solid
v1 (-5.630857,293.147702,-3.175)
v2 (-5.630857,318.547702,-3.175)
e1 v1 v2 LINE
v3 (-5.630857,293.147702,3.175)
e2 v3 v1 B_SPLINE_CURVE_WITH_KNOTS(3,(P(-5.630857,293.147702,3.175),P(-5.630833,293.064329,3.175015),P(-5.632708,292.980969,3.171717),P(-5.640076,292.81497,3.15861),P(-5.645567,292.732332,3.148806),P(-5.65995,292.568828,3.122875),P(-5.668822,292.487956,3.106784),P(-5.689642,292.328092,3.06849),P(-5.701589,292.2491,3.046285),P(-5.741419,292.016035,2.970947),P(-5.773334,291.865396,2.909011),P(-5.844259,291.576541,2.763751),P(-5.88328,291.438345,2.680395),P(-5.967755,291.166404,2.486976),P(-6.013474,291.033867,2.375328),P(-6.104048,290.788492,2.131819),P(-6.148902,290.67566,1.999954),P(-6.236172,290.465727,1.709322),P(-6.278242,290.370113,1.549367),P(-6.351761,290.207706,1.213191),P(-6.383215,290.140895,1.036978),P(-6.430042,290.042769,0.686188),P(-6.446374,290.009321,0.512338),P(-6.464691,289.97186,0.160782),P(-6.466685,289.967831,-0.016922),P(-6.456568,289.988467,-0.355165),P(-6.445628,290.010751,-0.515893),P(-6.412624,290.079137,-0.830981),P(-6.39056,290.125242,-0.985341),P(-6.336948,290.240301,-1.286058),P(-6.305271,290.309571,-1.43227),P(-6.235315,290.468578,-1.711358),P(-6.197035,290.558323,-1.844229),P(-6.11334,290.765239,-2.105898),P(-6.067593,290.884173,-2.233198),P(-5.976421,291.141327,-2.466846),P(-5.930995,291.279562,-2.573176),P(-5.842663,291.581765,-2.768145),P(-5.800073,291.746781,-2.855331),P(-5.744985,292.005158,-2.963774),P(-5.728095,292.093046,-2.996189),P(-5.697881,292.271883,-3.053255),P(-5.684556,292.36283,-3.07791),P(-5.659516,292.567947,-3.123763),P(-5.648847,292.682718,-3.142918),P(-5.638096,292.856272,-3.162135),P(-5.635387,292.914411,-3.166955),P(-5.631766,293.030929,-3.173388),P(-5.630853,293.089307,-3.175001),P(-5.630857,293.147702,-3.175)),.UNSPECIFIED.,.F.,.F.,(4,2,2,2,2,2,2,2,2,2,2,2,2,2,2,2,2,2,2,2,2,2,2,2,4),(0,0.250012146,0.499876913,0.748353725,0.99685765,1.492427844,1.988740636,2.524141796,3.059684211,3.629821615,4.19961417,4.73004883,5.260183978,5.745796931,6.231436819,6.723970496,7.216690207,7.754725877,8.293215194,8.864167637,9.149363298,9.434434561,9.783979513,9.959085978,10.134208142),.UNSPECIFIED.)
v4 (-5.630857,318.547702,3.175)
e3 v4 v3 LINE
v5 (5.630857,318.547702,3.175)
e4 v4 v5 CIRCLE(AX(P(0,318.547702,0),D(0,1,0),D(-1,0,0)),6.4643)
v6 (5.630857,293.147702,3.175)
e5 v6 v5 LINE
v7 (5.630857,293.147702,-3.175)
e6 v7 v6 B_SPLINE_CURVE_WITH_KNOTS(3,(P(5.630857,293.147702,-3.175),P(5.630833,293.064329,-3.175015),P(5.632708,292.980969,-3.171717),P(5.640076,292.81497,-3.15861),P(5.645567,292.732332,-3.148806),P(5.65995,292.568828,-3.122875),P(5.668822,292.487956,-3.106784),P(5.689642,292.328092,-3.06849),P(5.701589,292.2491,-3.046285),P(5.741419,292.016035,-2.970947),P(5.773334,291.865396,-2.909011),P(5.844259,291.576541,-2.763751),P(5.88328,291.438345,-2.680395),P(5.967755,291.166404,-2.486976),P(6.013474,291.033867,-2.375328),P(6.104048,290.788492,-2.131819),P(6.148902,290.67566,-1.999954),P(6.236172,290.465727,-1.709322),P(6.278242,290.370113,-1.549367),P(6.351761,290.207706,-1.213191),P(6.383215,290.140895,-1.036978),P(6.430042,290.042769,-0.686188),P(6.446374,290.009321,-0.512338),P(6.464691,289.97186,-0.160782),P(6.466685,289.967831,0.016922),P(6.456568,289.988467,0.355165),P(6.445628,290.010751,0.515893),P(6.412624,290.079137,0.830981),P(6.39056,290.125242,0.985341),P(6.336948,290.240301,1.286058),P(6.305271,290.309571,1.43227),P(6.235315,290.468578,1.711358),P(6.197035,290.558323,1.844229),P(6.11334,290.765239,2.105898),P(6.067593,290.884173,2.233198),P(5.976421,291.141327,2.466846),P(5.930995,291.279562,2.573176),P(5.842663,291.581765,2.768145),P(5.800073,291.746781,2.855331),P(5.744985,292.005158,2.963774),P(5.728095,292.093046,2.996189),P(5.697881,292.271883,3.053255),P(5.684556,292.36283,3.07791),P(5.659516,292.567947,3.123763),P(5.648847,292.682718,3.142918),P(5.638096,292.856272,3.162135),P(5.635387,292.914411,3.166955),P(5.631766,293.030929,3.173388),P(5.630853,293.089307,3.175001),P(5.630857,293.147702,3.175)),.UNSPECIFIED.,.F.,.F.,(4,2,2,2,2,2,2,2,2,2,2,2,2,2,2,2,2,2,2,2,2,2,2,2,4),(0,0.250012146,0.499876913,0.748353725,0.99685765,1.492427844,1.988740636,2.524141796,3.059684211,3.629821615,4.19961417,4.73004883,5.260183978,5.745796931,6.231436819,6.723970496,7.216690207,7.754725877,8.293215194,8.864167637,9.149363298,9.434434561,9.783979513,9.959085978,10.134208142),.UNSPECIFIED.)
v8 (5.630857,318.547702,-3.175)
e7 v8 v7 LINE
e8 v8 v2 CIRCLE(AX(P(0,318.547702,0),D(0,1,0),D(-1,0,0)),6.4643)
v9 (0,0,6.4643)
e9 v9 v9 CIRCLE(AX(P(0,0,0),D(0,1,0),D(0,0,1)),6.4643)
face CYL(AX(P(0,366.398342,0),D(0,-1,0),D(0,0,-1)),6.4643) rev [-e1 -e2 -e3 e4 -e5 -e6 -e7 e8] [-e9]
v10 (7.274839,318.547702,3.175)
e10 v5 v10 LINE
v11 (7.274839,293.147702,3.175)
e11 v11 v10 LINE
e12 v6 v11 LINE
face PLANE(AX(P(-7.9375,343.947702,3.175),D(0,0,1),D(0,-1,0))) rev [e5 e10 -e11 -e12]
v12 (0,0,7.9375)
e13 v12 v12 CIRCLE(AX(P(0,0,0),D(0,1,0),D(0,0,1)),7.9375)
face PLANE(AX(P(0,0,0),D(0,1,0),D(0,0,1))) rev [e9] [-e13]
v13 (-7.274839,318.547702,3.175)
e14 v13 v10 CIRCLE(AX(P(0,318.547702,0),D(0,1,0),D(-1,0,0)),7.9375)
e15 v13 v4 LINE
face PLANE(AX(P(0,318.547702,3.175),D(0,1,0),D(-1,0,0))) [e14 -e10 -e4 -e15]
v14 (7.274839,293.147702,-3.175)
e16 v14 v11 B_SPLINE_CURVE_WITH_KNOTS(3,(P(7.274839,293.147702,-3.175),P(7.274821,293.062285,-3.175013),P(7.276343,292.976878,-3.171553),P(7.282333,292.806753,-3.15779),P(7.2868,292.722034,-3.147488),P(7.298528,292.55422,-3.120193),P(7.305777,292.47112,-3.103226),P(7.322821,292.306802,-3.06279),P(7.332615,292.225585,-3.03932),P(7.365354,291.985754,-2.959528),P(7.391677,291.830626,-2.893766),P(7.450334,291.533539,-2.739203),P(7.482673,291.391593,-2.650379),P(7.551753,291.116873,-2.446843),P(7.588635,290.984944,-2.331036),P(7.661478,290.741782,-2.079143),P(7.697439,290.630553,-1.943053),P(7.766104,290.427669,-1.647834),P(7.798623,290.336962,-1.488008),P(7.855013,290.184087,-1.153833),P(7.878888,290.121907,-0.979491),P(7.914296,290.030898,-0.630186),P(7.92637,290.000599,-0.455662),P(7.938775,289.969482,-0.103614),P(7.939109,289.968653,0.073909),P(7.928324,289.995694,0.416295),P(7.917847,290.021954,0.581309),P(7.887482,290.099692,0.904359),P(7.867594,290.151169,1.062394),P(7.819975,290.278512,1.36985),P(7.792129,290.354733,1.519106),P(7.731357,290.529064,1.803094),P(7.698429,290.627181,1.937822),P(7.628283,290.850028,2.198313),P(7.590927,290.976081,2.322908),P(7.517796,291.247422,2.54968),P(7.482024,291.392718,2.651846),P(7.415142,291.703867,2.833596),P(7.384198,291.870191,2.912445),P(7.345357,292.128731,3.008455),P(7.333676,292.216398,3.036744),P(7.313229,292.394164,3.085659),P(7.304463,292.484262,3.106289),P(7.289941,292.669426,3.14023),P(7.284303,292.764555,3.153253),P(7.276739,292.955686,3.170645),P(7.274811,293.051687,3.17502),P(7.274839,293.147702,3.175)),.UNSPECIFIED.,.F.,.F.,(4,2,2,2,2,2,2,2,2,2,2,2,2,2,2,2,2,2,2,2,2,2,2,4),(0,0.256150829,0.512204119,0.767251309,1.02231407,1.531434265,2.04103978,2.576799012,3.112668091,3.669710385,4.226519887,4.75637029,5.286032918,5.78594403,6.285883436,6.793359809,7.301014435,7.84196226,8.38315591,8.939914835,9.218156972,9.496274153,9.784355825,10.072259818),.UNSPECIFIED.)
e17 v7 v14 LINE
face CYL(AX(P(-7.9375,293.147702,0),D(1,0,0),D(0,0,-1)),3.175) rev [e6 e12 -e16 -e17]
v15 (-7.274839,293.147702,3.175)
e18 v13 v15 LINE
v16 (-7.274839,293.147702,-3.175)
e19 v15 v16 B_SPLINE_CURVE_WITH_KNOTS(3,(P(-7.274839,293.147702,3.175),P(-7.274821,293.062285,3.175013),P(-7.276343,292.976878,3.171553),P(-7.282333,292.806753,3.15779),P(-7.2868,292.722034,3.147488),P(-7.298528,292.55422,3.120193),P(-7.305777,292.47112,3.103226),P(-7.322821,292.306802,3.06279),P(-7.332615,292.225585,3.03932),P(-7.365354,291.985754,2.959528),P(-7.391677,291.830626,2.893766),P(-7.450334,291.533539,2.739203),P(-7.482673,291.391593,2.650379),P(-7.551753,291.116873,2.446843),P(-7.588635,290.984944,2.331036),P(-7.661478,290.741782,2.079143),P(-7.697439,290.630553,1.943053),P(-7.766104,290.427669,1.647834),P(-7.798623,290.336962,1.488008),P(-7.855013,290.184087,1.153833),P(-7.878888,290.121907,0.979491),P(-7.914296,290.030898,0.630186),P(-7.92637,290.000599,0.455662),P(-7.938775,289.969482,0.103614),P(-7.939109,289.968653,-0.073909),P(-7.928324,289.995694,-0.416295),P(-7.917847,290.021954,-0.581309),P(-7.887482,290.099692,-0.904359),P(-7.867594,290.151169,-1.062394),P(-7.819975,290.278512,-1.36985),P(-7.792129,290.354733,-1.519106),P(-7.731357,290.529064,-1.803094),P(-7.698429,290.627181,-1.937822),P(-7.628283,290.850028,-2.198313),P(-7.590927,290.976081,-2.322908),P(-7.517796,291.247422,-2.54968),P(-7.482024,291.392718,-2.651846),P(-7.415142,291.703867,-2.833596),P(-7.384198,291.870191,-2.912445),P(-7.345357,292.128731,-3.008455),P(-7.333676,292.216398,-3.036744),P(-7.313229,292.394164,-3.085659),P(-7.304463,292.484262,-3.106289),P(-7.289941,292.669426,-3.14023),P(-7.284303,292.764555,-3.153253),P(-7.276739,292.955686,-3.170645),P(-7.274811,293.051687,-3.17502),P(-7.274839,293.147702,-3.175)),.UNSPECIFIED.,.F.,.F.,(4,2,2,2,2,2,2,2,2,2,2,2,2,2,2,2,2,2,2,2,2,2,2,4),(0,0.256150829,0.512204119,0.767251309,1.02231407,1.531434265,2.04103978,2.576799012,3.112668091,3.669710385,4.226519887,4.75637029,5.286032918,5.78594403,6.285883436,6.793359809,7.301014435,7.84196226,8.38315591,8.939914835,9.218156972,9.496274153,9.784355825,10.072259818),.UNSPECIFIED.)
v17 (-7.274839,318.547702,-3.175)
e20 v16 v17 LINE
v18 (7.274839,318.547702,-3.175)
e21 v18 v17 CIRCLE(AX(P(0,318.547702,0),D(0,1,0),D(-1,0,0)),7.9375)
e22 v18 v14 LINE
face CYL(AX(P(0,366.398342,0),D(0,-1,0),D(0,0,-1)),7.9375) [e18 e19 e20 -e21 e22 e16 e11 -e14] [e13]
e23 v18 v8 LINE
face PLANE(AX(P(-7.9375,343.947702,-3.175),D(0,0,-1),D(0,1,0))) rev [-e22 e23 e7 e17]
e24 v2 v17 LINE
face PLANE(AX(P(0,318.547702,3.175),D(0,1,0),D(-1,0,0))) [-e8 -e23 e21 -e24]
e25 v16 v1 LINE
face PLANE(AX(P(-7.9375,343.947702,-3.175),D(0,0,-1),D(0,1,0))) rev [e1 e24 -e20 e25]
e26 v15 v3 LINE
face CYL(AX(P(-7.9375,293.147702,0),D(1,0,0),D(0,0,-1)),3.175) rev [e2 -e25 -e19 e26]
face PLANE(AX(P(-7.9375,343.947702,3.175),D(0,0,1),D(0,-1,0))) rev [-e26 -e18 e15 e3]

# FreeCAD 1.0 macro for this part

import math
import FreeCAD as App
import Part
import Sketcher
from FreeCAD import Vector
Q = App.Units.Quantity

doc = App.newDocument("Part")
body = doc.addObject("PartDesign::Body", "Body")

sketch1 = doc.addObject("Sketcher::SketchObject", "Sketch")
body.addObject(sketch1)
sketch1.AttachmentSupport = (doc.XZ_Plane, [""])
sketch1.MapMode = "FlatFace"
sketch1.addGeometry([
    Part.Circle(Vector(0, 0, 0), Vector(0, 0, 1), 8),
    Part.Circle(Vector(0, 0, 0), Vector(0, 0, 1), 6),
], False)
sketch1.addConstraint([
    Sketcher.Constraint("Coincident", 0, 3, -1, 1),
    Sketcher.Constraint("Coincident", 1, 3, -1, 1),
    Sketcher.Constraint("Diameter", 0, Q("0.625 in")),
    Sketcher.Constraint("Diameter", 1, Q("0.509 in")),
])
pad1 = doc.addObject("PartDesign::Pad", "Pad")
body.addObject(pad1)
pad1.Profile = sketch1
pad1.Length = 318.547702
pad1.Reversed = True

sketch2 = doc.addObject("Sketcher::SketchObject", "Sketch001")
body.addObject(sketch2)
sketch2.AttachmentSupport = (doc.YZ_Plane, [""])
sketch2.MapMode = "FlatFace"
sketch2.addGeometry([
    Part.LineSegment(Vector(293.1, -3.2, 0), Vector(343.9, -3.2, 0)),
    Part.ArcOfCircle(Part.Circle(Vector(343.9, 0, 0), Vector(0, 0, 1), 3.2), math.radians(-90), math.radians(90)),
    Part.LineSegment(Vector(343.9, 3.2, 0), Vector(293.1, 3.2, 0)),
    Part.ArcOfCircle(Part.Circle(Vector(293.1, 0, 0), Vector(0, 0, 1), 3.2), math.radians(90), math.radians(270)),
], False)
sketch2.addConstraint([
    Sketcher.Constraint("Tangent", 0, 2, 1, 1),
    Sketcher.Constraint("Tangent", 1, 2, 2, 1),
    Sketcher.Constraint("Tangent", 2, 2, 3, 1),
    Sketcher.Constraint("Tangent", 3, 2, 0, 1),
    Sketcher.Constraint("Horizontal", 0),
    Sketcher.Constraint("Horizontal", 2),
    Sketcher.Constraint("PointOnObject", 1, 3, -1),
    Sketcher.Constraint("DistanceX", 0, 1, 0, 2, Q("2 in")),
    Sketcher.Constraint("Radius", 1, Q("0.125 in")),
    Sketcher.Constraint("DistanceX", -1, 1, 1, 3, Q("343.947702 mm")),
])
pocket1 = doc.addObject("PartDesign::Pocket", "Pocket")
body.addObject(pocket1)
pocket1.Profile = sketch2
pocket1.Type = "ThroughAll"
pocket1.Midplane = True

doc.recompute()
